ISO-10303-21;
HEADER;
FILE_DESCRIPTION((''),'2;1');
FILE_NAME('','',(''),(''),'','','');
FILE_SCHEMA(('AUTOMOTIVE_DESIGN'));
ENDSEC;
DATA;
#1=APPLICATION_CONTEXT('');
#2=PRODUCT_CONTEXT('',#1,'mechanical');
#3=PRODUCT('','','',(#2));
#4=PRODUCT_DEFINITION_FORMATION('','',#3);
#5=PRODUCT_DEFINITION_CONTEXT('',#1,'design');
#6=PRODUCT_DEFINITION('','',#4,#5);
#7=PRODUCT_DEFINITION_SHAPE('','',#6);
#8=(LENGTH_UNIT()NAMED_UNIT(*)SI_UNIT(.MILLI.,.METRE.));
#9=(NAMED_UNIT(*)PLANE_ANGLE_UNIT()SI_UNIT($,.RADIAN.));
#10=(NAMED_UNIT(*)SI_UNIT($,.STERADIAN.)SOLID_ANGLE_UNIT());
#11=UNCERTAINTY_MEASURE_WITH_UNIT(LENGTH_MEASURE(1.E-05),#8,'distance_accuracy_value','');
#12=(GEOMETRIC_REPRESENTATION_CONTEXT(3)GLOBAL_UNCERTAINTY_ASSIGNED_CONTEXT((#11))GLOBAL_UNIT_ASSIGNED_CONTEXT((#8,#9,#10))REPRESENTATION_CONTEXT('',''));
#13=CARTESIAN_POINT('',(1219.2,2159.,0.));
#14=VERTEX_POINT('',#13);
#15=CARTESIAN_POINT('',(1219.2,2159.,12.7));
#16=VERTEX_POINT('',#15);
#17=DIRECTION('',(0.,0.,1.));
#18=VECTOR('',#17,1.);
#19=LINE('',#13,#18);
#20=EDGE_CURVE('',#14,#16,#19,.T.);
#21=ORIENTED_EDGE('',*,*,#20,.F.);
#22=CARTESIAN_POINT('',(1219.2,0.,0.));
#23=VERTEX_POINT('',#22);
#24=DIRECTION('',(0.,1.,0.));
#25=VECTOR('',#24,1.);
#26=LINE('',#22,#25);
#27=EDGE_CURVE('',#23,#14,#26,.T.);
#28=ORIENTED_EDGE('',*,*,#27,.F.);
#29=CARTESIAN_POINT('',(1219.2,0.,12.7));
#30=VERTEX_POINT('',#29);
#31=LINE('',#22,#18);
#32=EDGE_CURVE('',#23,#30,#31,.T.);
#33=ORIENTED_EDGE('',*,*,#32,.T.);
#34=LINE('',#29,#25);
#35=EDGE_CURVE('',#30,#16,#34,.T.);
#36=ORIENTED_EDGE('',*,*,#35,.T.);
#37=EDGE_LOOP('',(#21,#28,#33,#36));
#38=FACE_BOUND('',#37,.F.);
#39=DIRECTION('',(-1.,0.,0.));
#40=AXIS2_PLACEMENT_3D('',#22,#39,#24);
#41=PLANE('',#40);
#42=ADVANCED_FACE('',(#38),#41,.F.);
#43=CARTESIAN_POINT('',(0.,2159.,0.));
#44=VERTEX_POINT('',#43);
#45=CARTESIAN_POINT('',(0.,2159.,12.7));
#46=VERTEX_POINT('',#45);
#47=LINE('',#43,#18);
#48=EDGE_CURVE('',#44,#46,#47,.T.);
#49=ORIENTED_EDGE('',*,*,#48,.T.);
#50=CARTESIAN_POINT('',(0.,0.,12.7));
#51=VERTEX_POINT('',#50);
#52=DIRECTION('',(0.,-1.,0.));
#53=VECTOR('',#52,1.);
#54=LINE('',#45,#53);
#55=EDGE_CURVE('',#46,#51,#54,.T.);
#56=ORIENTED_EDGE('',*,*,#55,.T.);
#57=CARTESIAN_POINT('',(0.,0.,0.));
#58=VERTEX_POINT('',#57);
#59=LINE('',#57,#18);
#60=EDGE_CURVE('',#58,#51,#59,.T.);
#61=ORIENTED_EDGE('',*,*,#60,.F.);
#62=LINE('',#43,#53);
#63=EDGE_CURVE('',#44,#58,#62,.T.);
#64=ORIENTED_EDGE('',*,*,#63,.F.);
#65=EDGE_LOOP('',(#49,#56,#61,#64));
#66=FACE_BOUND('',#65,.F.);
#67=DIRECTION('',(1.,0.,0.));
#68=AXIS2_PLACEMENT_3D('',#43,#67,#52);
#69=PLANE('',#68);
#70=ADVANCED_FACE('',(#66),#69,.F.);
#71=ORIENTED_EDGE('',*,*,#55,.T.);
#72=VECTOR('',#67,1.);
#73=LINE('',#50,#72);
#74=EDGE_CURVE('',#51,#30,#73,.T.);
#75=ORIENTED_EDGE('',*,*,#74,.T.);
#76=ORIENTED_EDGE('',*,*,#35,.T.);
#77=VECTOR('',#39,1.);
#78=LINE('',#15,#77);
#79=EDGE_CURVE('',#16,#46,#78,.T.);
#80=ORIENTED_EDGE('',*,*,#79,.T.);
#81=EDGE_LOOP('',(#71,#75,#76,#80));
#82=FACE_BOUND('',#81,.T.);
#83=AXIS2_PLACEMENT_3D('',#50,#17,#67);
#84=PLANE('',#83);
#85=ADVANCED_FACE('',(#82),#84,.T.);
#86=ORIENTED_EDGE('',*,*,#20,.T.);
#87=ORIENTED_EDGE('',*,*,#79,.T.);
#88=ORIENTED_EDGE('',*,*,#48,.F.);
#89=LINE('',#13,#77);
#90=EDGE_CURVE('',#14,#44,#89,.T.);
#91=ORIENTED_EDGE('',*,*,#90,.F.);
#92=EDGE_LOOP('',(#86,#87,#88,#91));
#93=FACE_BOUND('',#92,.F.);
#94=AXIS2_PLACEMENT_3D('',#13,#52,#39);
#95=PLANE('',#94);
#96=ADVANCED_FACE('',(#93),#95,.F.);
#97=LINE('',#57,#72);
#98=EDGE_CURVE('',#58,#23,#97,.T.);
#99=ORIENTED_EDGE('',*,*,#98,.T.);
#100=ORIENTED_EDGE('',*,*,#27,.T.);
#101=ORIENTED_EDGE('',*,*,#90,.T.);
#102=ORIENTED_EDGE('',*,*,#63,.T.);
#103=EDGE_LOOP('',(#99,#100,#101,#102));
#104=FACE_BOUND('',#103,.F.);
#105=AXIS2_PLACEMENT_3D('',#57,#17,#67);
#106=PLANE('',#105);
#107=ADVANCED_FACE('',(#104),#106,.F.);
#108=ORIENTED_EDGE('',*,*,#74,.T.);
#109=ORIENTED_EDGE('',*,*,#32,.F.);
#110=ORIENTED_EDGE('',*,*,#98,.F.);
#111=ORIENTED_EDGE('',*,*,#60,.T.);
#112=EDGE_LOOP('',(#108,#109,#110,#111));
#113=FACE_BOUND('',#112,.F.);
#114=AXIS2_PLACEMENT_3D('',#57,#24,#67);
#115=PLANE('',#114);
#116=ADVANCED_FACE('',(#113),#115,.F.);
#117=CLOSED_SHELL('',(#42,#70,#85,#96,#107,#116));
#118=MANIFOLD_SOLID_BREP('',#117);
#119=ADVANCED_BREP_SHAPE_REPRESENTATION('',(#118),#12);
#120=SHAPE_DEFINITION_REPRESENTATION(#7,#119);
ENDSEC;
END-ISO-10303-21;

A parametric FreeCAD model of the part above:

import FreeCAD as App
import Part
import Sketcher

V = App.Vector
Q = App.Units.Quantity


def add_polygon(sketch, points):
    """Adds a closed chain of lines whose ends are joined by coincident constraints."""
    first, n = sketch.GeometryCount, len(points)
    for a, b in zip(points, points[1:] + points[:1]):
        sketch.addGeometry(Part.LineSegment(App.Vector(*a, 0), App.Vector(*b, 0)), False)
    for i in range(n):
        sketch.addConstraint(Sketcher.Constraint("Coincident", first + i, 2, first + (i + 1) % n, 1))

doc = App.newDocument("Part")
body = doc.addObject("PartDesign::Body", "Body")

# Sketch on XY plane
sketch1 = doc.addObject("Sketcher::SketchObject", "Sketch")
body.addObject(sketch1)
sketch1.AttachmentSupport = (doc.XY_Plane, [""])
sketch1.MapMode = "FlatFace"
add_polygon(sketch1, [(0, 2159), (0, 0), (1219, 0), (1219, 2159)])  # lines 0-3
sketch1.addConstraint([
    Sketcher.Constraint("Vertical", 0),
    Sketcher.Constraint("Horizontal", 1),
    Sketcher.Constraint("Vertical", 2),
    Sketcher.Constraint("Horizontal", 3),
    Sketcher.Constraint("Coincident", 0, 2, -1, 1),
    Sketcher.Constraint("DistanceX", 1, 1, 1, 2, Q("48 in")),
    Sketcher.Constraint("DistanceY", 0, 2, 0, 1, Q("85 in")),
])
pad1 = doc.addObject("PartDesign::Pad", "Pad")
body.addObject(pad1)
pad1.Profile = sketch1
pad1.Length = Q("0.5 in")

doc.recompute()
